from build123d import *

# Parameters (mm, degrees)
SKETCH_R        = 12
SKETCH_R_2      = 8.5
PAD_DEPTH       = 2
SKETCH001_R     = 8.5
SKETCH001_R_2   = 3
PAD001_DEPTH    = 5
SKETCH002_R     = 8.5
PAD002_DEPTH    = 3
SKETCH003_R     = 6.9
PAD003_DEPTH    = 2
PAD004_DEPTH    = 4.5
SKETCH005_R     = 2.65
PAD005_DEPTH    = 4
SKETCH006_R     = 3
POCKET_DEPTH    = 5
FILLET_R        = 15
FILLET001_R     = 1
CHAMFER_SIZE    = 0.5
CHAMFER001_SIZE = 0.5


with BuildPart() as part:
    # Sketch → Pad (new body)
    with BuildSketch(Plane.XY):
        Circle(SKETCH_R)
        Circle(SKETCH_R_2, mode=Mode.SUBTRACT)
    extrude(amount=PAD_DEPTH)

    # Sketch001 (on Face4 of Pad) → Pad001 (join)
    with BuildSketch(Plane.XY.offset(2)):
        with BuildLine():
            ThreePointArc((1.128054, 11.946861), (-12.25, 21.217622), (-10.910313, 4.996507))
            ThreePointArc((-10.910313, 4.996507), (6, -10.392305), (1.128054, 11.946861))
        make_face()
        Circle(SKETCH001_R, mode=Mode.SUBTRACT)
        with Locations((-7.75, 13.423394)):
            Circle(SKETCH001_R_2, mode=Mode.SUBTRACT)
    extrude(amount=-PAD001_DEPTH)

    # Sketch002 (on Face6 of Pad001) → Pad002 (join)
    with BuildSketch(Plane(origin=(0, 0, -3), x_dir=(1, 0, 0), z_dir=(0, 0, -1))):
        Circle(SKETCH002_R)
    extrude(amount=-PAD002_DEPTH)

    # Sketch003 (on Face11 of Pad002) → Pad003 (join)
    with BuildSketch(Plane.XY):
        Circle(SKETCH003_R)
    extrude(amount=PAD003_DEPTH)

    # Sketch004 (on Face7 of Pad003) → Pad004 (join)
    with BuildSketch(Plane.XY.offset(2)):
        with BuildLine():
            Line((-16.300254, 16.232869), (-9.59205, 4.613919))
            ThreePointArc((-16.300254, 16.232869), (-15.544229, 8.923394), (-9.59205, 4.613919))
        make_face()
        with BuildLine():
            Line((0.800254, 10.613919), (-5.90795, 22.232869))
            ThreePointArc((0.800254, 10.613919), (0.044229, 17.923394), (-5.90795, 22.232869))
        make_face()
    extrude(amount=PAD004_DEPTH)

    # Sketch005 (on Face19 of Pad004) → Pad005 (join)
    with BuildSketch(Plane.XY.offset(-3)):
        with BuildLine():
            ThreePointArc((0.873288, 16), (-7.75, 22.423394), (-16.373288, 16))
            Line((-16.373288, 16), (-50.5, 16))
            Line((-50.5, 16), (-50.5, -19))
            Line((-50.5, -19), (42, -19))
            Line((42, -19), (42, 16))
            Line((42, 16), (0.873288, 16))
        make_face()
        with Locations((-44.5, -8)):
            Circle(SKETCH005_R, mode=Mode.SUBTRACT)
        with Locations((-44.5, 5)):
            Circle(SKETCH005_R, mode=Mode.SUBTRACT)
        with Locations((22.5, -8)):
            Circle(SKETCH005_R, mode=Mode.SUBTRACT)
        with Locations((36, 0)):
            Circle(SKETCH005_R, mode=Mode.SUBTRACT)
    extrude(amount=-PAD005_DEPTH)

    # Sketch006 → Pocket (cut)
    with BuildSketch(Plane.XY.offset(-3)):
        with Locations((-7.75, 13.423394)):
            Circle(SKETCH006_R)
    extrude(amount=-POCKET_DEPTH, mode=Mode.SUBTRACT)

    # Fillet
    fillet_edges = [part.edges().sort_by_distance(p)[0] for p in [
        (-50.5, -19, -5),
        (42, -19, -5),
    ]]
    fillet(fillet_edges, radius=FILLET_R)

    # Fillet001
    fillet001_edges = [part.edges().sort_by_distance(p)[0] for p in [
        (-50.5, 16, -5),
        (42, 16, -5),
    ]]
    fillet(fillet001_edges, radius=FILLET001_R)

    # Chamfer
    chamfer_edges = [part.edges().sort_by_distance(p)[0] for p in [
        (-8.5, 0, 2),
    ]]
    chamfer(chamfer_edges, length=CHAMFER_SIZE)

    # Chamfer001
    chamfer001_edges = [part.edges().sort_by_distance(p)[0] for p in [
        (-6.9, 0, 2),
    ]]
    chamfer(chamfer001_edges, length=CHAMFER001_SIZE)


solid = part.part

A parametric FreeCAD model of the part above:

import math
import FreeCAD as App
import Part
import Sketcher

V = App.Vector
Q = App.Units.Quantity


def edges_at(feature, points):
    """Names of the edges that pass closest to the given points."""
    edges = feature.Shape.Edges
    near = lambda p: min(range(len(edges)), key=lambda i: edges[i].distToShape(Part.Vertex(*p))[0])
    return sorted({f"Edge{near(p) + 1}" for p in points})

doc = App.newDocument("Part")
body = doc.addObject("PartDesign::Body", "Body")

sketch1 = body.newObject("Sketcher::SketchObject", "Sketch")
sketch1.AttachmentSupport = (doc.getObject("XY_Plane"), [""])
sketch1.MapMode = "FlatFace"
sketch1.addGeometry(Part.Circle(V(0, 0, 0), V(0, 0, 1), 12), False)
sketch1.addGeometry(Part.Circle(V(0, 0, 0), V(0, 0, 1), 8.5), False)
sketch1.addConstraint(Sketcher.Constraint("Coincident", 0, 3, -1, 1))
sketch1.addConstraint(Sketcher.Constraint("Coincident", 1, 3, -1, 1))
sketch1.addConstraint(Sketcher.Constraint("Diameter", 0, Q("24 mm")))
sketch1.addConstraint(Sketcher.Constraint("Diameter", 1, Q("17 mm")))
pad1 = body.newObject("PartDesign::Pad", "Pad")
pad1.Profile = sketch1
pad1.Length = 2

sketch2 = body.newObject("Sketcher::SketchObject", "Sketch001")
sketch2.AttachmentSupport = (doc.getObject("XY_Plane"), [""])
sketch2.MapMode = "FlatFace"
sketch2.AttachmentOffset = App.Placement(V(0, 0, 2), App.Rotation())
sketch2.addGeometry(Part.ArcOfCircle(Part.Circle(V(-7.75, 13.423394, 0), V(0, 0, 1), 9), math.radians(-9.442585), math.radians(249.442582)), False)
sketch2.addGeometry(Part.ArcOfCircle(Part.Circle(V(-0.000001, 0, 0), V(0, 0, 1), 12), math.radians(155.394025), math.radians(444.605972)), False)
sketch2.addGeometry(Part.Circle(V(0, 0, 0), V(0, 0, 1), 8.5), False)
sketch2.addGeometry(Part.Circle(V(-7.75, 13.423394, 0), V(0, 0, 1), 3), False)
sketch2.addConstraint(Sketcher.Constraint("Coincident", 0, 1, 1, 2))
sketch2.addConstraint(Sketcher.Constraint("Coincident", 1, 1, 0, 2))
sketch2.addConstraint(Sketcher.Constraint("Coincident", 1, 3, -1, 1))
sketch2.addConstraint(Sketcher.Constraint("Coincident", 2, 3, -1, 1))
sketch2.addConstraint(Sketcher.Constraint("Coincident", 3, 3, 0, 3))
sketch2.addConstraint(Sketcher.Constraint("Diameter", 2, Q("17 mm")))
sketch2.addConstraint(Sketcher.Constraint("Diameter", 3, Q("6 mm")))
sketch2.addConstraint(Sketcher.Constraint("Radius", 0, Q("9 mm")))
sketch2.addConstraint(Sketcher.Constraint("Radius", 1, Q("12 mm")))
sketch2.addConstraint(Sketcher.Constraint("DistanceX", 0, 3, -1, 1, Q("7.75 mm")))
sketch2.addConstraint(Sketcher.Constraint("DistanceY", -1, 1, 0, 3, Q("13.423394 mm")))
pad2 = body.newObject("PartDesign::Pad", "Pad001")
pad2.Profile = sketch2
pad2.Length = 5
pad2.Reversed = True

sketch3 = body.newObject("Sketcher::SketchObject", "Sketch002")
sketch3.AttachmentSupport = (doc.getObject("XY_Plane"), [""])
sketch3.MapMode = "FlatFace"
sketch3.AttachmentOffset = App.Placement(V(0, 0, -3), App.Rotation())
sketch3.addGeometry(Part.Circle(V(0, 0, 0), V(0, 0, 1), 8.5), False)
sketch3.addConstraint(Sketcher.Constraint("Coincident", 0, 3, -1, 1))
sketch3.addConstraint(Sketcher.Constraint("Diameter", 0, Q("17 mm")))
pad3 = body.newObject("PartDesign::Pad", "Pad002")
pad3.Profile = sketch3
pad3.Length = 3

sketch4 = body.newObject("Sketcher::SketchObject", "Sketch003")
sketch4.AttachmentSupport = (doc.getObject("XY_Plane"), [""])
sketch4.MapMode = "FlatFace"
sketch4.addGeometry(Part.Circle(V(0, 0, 0), V(0, 0, 1), 6.9), False)
sketch4.addConstraint(Sketcher.Constraint("Coincident", 0, 3, -1, 1))
sketch4.addConstraint(Sketcher.Constraint("Diameter", 0, Q("13.8 mm")))
pad4 = body.newObject("PartDesign::Pad", "Pad003")
pad4.Profile = sketch4
pad4.Length = 2

sketch5 = body.newObject("Sketcher::SketchObject", "Sketch004")
sketch5.AttachmentSupport = (doc.getObject("XY_Plane"), [""])
sketch5.MapMode = "FlatFace"
sketch5.AttachmentOffset = App.Placement(V(0, 0, 2), App.Rotation())
sketch5.addGeometry(Part.LineSegment(V(-9.59205, 4.613919, 0), V(-16.300254, 16.232869, 0)), False)
sketch5.addGeometry(Part.ArcOfCircle(Part.Circle(V(-7.750001, 13.423393, 0), V(0, 0, 1), 8.999999), math.radians(161.810306), math.radians(258.189695)), False)
sketch5.addGeometry(Part.LineSegment(V(-5.90795, 22.232869, 0), V(0.800254, 10.613919, 0)), False)
sketch5.addGeometry(Part.ArcOfCircle(Part.Circle(V(-7.749999, 13.423395, 0), V(0, 0, 1), 8.999999), math.radians(-18.189694), math.radians(78.189695)), False)
sketch5.addConstraint(Sketcher.Constraint("Coincident", 0, 1, 1, 2))
sketch5.addConstraint(Sketcher.Constraint("Coincident", 1, 1, 0, 2))
sketch5.addConstraint(Sketcher.Constraint("Coincident", 2, 1, 3, 2))
sketch5.addConstraint(Sketcher.Constraint("Coincident", 3, 1, 2, 2))
sketch5.addConstraint(Sketcher.Constraint("Coincident", 3, 3, 1, 3))
sketch5.addConstraint(Sketcher.Constraint("Equal", 1, 3))
sketch5.addConstraint(Sketcher.Constraint("Parallel", 0, 2))
sketch5.addConstraint(Sketcher.Constraint("Equal", 0, 2))
sketch5.addConstraint(Sketcher.Constraint("Radius", 1, Q("8.999999 mm")))
sketch5.addConstraint(Sketcher.Constraint("Angle", 0, Q("120 deg")))
sketch5.addConstraint(Sketcher.Constraint("DistanceY", 1, 1, 2, 1, Q("6 mm")))
sketch5.addConstraint(Sketcher.Constraint("DistanceX", 1, 3, -1, 1, Q("7.750001 mm")))
sketch5.addConstraint(Sketcher.Constraint("DistanceY", -1, 1, 0, 1, Q("4.613919 mm")))
pad5 = body.newObject("PartDesign::Pad", "Pad004")
pad5.Profile = sketch5
pad5.Length = 4.5

sketch6 = body.newObject("Sketcher::SketchObject", "Sketch005")
sketch6.AttachmentSupport = (doc.getObject("XY_Plane"), [""])
sketch6.MapMode = "FlatFace"
sketch6.AttachmentOffset = App.Placement(V(0, 0, -3), App.Rotation())
sketch6.addGeometry(Part.ArcOfCircle(Part.Circle(V(-7.75, 13.423394, 0), V(0, 0, 1), 9), math.radians(16.635945), math.radians(163.364055)), False)
sketch6.addGeometry(Part.LineSegment(V(-16.373288, 16, 0), V(-50.5, 16, 0)), False)
sketch6.addGeometry(Part.LineSegment(V(-50.5, 16, 0), V(-50.5, -19, 0)), False)
sketch6.addGeometry(Part.LineSegment(V(-50.5, -19, 0), V(42, -19, 0)), False)
sketch6.addGeometry(Part.LineSegment(V(42, -19, 0), V(42, 16, 0)), False)
sketch6.addGeometry(Part.LineSegment(V(42, 16, 0), V(0.873288, 16, 0)), False)
sketch6.addGeometry(Part.Circle(V(-44.5, -8, 0), V(0, 0, 1), 2.65), False)
sketch6.addGeometry(Part.Circle(V(22.5, -8, 0), V(0, 0, 1), 2.65), False)
sketch6.addGeometry(Part.Circle(V(-44.5, 5, 0), V(0, 0, 1), 2.65), False)
sketch6.addGeometry(Part.Circle(V(36, 0, 0), V(0, 0, 1), 2.65), False)
sketch6.addConstraint(Sketcher.Constraint("Coincident", 0, 2, 1, 1))
sketch6.addConstraint(Sketcher.Constraint("Coincident", 1, 2, 2, 1))
sketch6.addConstraint(Sketcher.Constraint("Coincident", 2, 2, 3, 1))
sketch6.addConstraint(Sketcher.Constraint("Coincident", 3, 2, 4, 1))
sketch6.addConstraint(Sketcher.Constraint("Coincident", 4, 2, 5, 1))
sketch6.addConstraint(Sketcher.Constraint("Coincident", 5, 2, 0, 1))
sketch6.addConstraint(Sketcher.Constraint("Horizontal", 1))
sketch6.addConstraint(Sketcher.Constraint("Vertical", 2))
sketch6.addConstraint(Sketcher.Constraint("Horizontal", 3))
sketch6.addConstraint(Sketcher.Constraint("Vertical", 4))
sketch6.addConstraint(Sketcher.Constraint("Horizontal", 5))
sketch6.addConstraint(Sketcher.Constraint("Equal", 6, 7))
sketch6.addConstraint(Sketcher.Constraint("Equal", 7, 8))
sketch6.addConstraint(Sketcher.Constraint("Equal", 8, 9))
sketch6.addConstraint(Sketcher.Constraint("PointOnObject", 9, 3, -1))
sketch6.addConstraint(Sketcher.Constraint("Horizontal", 6, 3, 7, 3))
sketch6.addConstraint(Sketcher.Constraint("Horizontal", 1, 2, 4, 2))
sketch6.addConstraint(Sketcher.Constraint("Vertical", 6, 3, 8, 3))
sketch6.addConstraint(Sketcher.Constraint("Radius", 0, Q("9 mm")))
sketch6.addConstraint(Sketcher.Constraint("Diameter", 6, Q("5.3 mm")))
sketch6.addConstraint(Sketcher.Constraint("DistanceY", 2, 2, 2, 1, Q("35 mm")))
sketch6.addConstraint(Sketcher.Constraint("DistanceX", 3, 1, 3, 2, Q("92.5 mm")))
sketch6.addConstraint(Sketcher.Constraint("DistanceY", 6, 3, -1, 1, Q("8 mm")))
sketch6.addConstraint(Sketcher.Constraint("DistanceY", -1, 1, 8, 3, Q("5 mm")))
sketch6.addConstraint(Sketcher.Constraint("DistanceX", -1, 1, 9, 3, Q("36 mm")))
sketch6.addConstraint(Sketcher.Constraint("DistanceY", -1, 1, 0, 2, Q("16 mm")))
sketch6.addConstraint(Sketcher.Constraint("DistanceX", -1, 1, 3, 2, Q("42 mm")))
sketch6.addConstraint(Sketcher.Constraint("DistanceX", 6, 3, 7, 3, Q("67 mm")))
sketch6.addConstraint(Sketcher.Constraint("DistanceX", 1, 2, 8, 3, Q("6 mm")))
sketch6.addConstraint(Sketcher.Constraint("DistanceX", 0, 3, -1, 1, Q("7.75 mm")))
sketch6.addConstraint(Sketcher.Constraint("DistanceX", 1, 2, 1, 1, Q("34.126712 mm")))
pad6 = body.newObject("PartDesign::Pad", "Pad005")
pad6.Profile = sketch6
pad6.Length = 4
pad6.Reversed = True

sketch7 = body.newObject("Sketcher::SketchObject", "Sketch006")
sketch7.AttachmentSupport = (doc.getObject("XY_Plane"), [""])
sketch7.MapMode = "FlatFace"
sketch7.AttachmentOffset = App.Placement(V(0, 0, -3), App.Rotation())
sketch7.addGeometry(Part.Circle(V(-7.75, 13.423394, 0), V(0, 0, 1), 3), False)
sketch7.addConstraint(Sketcher.Constraint("Diameter", 0, Q("6 mm")))
sketch7.addConstraint(Sketcher.Constraint("DistanceX", 0, 3, -1, 1, Q("7.75 mm")))
sketch7.addConstraint(Sketcher.Constraint("DistanceY", -1, 1, 0, 3, Q("13.423394 mm")))
pocket1 = body.newObject("PartDesign::Pocket", "Pocket")
pocket1.Profile = sketch7
pocket1.Length = 5
doc.recompute()

fillet = body.newObject("PartDesign::Fillet", "Fillet")
fillet.Base = (pocket1, edges_at(pocket1, [(-50.5, -19, -5), (42, -19, -5)]))
fillet.Radius = 15
doc.recompute()

fillet2 = body.newObject("PartDesign::Fillet", "Fillet001")
fillet2.Base = (fillet, edges_at(fillet, [(-50.5, 16, -5), (42, 16, -5)]))
fillet2.Radius = 1
doc.recompute()

chamfer = body.newObject("PartDesign::Chamfer", "Chamfer")
chamfer.Base = (fillet2, edges_at(fillet2, [(-8.5, 0, 2)]))
chamfer.Size = 0.5
doc.recompute()

chamfer2 = body.newObject("PartDesign::Chamfer", "Chamfer001")
chamfer2.Base = (chamfer, edges_at(chamfer, [(-6.9, 0, 2)]))
chamfer2.Size = 0.5

doc.recompute()
